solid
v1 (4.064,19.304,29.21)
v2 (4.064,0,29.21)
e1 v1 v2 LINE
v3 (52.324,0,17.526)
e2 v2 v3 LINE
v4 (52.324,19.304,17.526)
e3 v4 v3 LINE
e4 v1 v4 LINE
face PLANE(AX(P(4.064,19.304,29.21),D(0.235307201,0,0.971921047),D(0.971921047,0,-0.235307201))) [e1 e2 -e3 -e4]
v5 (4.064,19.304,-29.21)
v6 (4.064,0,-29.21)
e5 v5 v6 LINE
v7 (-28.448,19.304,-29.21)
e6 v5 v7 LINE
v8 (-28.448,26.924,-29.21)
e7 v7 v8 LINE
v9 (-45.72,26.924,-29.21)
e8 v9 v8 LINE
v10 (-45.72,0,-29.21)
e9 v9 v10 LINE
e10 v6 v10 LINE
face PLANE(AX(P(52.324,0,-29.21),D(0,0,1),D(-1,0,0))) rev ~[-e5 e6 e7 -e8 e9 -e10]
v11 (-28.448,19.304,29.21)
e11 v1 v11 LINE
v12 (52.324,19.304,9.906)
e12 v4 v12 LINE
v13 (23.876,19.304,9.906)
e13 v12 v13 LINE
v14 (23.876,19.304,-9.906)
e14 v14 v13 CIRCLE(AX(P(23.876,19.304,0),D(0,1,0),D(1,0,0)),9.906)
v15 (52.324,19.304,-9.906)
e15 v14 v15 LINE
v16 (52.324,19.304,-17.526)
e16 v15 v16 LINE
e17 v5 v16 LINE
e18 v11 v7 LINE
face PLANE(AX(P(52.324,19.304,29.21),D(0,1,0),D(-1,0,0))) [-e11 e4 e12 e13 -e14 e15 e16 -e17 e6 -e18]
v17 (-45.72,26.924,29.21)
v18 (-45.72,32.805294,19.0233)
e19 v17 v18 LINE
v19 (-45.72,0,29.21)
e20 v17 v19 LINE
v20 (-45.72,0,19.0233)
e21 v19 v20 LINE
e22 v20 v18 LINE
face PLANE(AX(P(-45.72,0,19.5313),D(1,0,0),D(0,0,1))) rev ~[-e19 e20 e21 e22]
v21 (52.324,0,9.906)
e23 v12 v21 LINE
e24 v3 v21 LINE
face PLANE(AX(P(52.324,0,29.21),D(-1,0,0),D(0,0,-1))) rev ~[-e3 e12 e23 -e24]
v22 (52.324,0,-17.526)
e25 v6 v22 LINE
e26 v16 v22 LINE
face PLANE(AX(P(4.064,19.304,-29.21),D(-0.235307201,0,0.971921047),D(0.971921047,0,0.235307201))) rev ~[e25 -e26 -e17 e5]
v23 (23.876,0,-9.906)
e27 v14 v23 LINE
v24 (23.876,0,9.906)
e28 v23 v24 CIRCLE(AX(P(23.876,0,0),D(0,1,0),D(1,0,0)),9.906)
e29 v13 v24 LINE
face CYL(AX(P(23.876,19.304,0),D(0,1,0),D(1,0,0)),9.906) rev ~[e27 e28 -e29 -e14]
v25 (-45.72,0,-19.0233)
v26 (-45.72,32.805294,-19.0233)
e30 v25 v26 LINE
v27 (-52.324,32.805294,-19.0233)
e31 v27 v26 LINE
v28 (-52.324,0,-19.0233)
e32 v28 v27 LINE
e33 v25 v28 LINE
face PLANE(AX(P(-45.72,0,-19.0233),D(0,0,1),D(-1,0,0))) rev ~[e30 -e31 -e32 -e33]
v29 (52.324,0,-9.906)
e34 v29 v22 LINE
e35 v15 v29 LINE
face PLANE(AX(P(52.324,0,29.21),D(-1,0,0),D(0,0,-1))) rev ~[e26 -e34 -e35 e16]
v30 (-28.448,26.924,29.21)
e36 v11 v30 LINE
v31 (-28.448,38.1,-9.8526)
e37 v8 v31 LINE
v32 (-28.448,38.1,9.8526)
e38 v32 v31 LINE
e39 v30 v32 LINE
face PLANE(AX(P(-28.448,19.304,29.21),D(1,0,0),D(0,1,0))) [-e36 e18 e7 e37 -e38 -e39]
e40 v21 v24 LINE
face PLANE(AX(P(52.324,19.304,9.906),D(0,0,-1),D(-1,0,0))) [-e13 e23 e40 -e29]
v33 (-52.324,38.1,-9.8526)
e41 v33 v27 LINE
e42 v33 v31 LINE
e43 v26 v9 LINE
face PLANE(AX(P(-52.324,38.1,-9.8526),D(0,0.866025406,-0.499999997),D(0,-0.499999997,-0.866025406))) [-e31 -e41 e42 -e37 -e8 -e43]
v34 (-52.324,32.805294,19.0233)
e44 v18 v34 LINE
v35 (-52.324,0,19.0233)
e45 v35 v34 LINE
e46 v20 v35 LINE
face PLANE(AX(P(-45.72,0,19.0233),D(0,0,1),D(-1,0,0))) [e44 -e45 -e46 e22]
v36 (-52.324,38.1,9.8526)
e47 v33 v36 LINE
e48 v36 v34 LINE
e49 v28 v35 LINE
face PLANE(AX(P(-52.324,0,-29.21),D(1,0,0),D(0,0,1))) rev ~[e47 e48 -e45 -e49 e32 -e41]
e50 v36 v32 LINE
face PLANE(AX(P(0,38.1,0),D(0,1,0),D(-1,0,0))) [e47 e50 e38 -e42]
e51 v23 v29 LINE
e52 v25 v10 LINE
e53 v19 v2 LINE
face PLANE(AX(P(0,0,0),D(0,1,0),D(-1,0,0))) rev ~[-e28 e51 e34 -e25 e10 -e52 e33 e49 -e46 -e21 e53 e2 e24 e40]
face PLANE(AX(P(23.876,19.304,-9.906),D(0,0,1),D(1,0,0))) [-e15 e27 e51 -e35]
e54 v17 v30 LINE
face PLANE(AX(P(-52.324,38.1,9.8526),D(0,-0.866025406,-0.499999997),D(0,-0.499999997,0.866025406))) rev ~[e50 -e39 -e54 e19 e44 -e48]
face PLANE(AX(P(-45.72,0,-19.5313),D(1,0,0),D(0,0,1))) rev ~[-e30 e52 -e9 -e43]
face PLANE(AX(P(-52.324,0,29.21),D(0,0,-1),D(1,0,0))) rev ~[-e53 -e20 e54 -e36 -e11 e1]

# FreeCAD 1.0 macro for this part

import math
import FreeCAD as App
import Part
import Sketcher
from FreeCAD import Vector
Q = App.Units.Quantity

doc = App.newDocument("Part")
body = doc.addObject("PartDesign::Body", "Body")

sketch1 = doc.addObject("Sketcher::SketchObject", "Sketch")
body.addObject(sketch1)
sketch1.AttachmentSupport = (doc.XZ_Plane, [""])
sketch1.MapMode = "FlatFace"
sketch1.addGeometry([
    Part.LineSegment(Vector(52, 29, 0), Vector(52, -29, 0)),
    Part.LineSegment(Vector(52, -29, 0), Vector(-52, -29, 0)),
    Part.LineSegment(Vector(-52, -29, 0), Vector(-52, 29, 0)),
    Part.LineSegment(Vector(-52, 29, 0), Vector(52, 29, 0)),
], False)
sketch1.addConstraint([
    Sketcher.Constraint("Coincident", 0, 2, 1, 1),
    Sketcher.Constraint("Coincident", 1, 2, 2, 1),
    Sketcher.Constraint("Coincident", 2, 2, 3, 1),
    Sketcher.Constraint("Coincident", 3, 2, 0, 1),
    Sketcher.Constraint("Vertical", 0),
    Sketcher.Constraint("Horizontal", 1),
    Sketcher.Constraint("Vertical", 2),
    Sketcher.Constraint("Horizontal", 3),
    Sketcher.Constraint("Symmetric", 0, 2, 2, 2, -1, 1),
    Sketcher.Constraint("DistanceY", 0, 2, 0, 1, Q("2.3 in")),
    Sketcher.Constraint("DistanceX", 1, 2, 1, 1, Q("4.12 in")),
])
pad1 = doc.addObject("PartDesign::Pad", "Pad")
body.addObject(pad1)
pad1.Profile = sketch1
pad1.Length = Q("1.5 in")
pad1.Reversed = True

sketch2 = doc.addObject("Sketcher::SketchObject", "Sketch001")
body.addObject(sketch2)
sketch2.AttachmentSupport = (doc.XY_Plane, [""])
sketch2.MapMode = "FlatFace"
sketch2.AttachmentOffset = App.Placement(Vector(0, 0, 1.15 * 25.4), App.Rotation())
sketch2.addGeometry([
    Part.LineSegment(Vector(52, 38, 0), Vector(-28, 38, 0)),
    Part.LineSegment(Vector(-28, 38, 0), Vector(-28, 19, 0)),
    Part.LineSegment(Vector(-28, 19, 0), Vector(52, 19, 0)),
    Part.LineSegment(Vector(52, 19, 0), Vector(52, 38, 0)),
], False)
sketch2.addConstraint([
    Sketcher.Constraint("Coincident", 0, 2, 1, 1),
    Sketcher.Constraint("Coincident", 1, 2, 2, 1),
    Sketcher.Constraint("Coincident", 2, 2, 3, 1),
    Sketcher.Constraint("Coincident", 3, 2, 0, 1),
    Sketcher.Constraint("Horizontal", 0),
    Sketcher.Constraint("Vertical", 1),
    Sketcher.Constraint("Horizontal", 2),
    Sketcher.Constraint("Vertical", 3),
    Sketcher.Constraint("DistanceY", -1, 1, 1, 2, Q("0.76 in")),
    Sketcher.Constraint("DistanceX", 0, 2, 0, 1, Q("3.18 in")),
    Sketcher.Constraint("DistanceY", 1, 2, 1, 1, Q("0.74 in")),
    Sketcher.Constraint("DistanceX", 0, 2, -1, 1, Q("1.12 in")),
])
pocket1 = doc.addObject("PartDesign::Pocket", "Pocket")
body.addObject(pocket1)
pocket1.Profile = sketch2
pocket1.Type = "ThroughAll"

sketch3 = doc.addObject("Sketcher::SketchObject", "Sketch002")
body.addObject(sketch3)
sketch3.AttachmentSupport = (doc.YZ_Plane, [""])
sketch3.MapMode = "FlatFace"
sketch3.AttachmentOffset = App.Placement(Vector(0, 0, -2.06 * 25.4), App.Rotation())
sketch3.addGeometry([
    Part.LineSegment(Vector(38, 29, 0), Vector(38, 10, 0)),
    Part.LineSegment(Vector(38, 10, 0), Vector(27, 29, 0)),
    Part.LineSegment(Vector(27, 29, 0), Vector(38, 29, 0)),
], False)
sketch3.addConstraint([
    Sketcher.Constraint("Coincident", 0, 2, 1, 1),
    Sketcher.Constraint("Coincident", 1, 2, 2, 1),
    Sketcher.Constraint("Coincident", 2, 2, 0, 1),
    Sketcher.Constraint("Vertical", 0),
    Sketcher.Constraint("Horizontal", 2),
    Sketcher.Constraint("DistanceX", 2, 1, 2, 2, Q("0.44 in")),
    Sketcher.Constraint("Angle", 1, Q("120 deg")),
    Sketcher.Constraint("DistanceX", -1, 1, 0, 2, Q("1.5 in")),
    Sketcher.Constraint("DistanceY", -1, 1, 1, 2, Q("1.15 in")),
])
pocket2 = doc.addObject("PartDesign::Pocket", "Pocket001")
body.addObject(pocket2)
pocket2.Profile = sketch3
pocket2.Type = "ThroughAll"
pocket2.Reversed = True

sketch4 = doc.addObject("Sketcher::SketchObject", "Sketch003")
body.addObject(sketch4)
sketch4.AttachmentSupport = (doc.YZ_Plane, [""])
sketch4.MapMode = "FlatFace"
sketch4.AttachmentOffset = App.Placement(Vector(0, 0, -2.06 * 25.4), App.Rotation())
sketch4.addGeometry([
    Part.LineSegment(Vector(38, -10, 0), Vector(38, -29, 0)),
    Part.LineSegment(Vector(38, -29, 0), Vector(27, -29, 0)),
    Part.LineSegment(Vector(27, -29, 0), Vector(38, -10, 0)),
], False)
sketch4.addConstraint([
    Sketcher.Constraint("Coincident", 0, 2, 1, 1),
    Sketcher.Constraint("Coincident", 1, 2, 2, 1),
    Sketcher.Constraint("Coincident", 2, 2, 0, 1),
    Sketcher.Constraint("Vertical", 0),
    Sketcher.Constraint("Horizontal", 1),
    Sketcher.Constraint("DistanceX", 1, 2, 1, 1, Q("0.44 in")),
    Sketcher.Constraint("Angle", 2, Q("60 deg")),
    Sketcher.Constraint("DistanceX", -1, 1, 0, 2, Q("1.5 in")),
    Sketcher.Constraint("DistanceY", 0, 2, -1, 1, Q("1.15 in")),
])
pocket3 = doc.addObject("PartDesign::Pocket", "Pocket002")
body.addObject(pocket3)
pocket3.Profile = sketch4
pocket3.Type = "ThroughAll"
pocket3.Reversed = True

sketch5 = doc.addObject("Sketcher::SketchObject", "Sketch004")
body.addObject(sketch5)
sketch5.AttachmentSupport = (doc.XZ_Plane, [""])
sketch5.MapMode = "FlatFace"
sketch5.AttachmentOffset = App.Placement(Vector(0, 0, -0.76 * 25.4), App.Rotation())
sketch5.addGeometry([
    Part.LineSegment(Vector(4, 29, 0), Vector(52, 29, 0)),
    Part.LineSegment(Vector(52, 29, 0), Vector(52, 18, 0)),
    Part.LineSegment(Vector(52, 18, 0), Vector(4, 29, 0)),
], False)
sketch5.addConstraint([
    Sketcher.Constraint("Coincident", 0, 2, 1, 1),
    Sketcher.Constraint("Coincident", 1, 2, 2, 1),
    Sketcher.Constraint("Coincident", 2, 2, 0, 1),
    Sketcher.Constraint("Horizontal", 0),
    Sketcher.Constraint("Vertical", 1),
    Sketcher.Constraint("DistanceX", 0, 1, 0, 2, Q("1.9 in")),
    Sketcher.Constraint("DistanceY", 1, 2, 1, 1, Q("0.46 in")),
    Sketcher.Constraint("DistanceX", -1, 1, 0, 2, Q("2.06 in")),
    Sketcher.Constraint("DistanceY", -1, 1, 0, 2, Q("1.15 in")),
])
pocket4 = doc.addObject("PartDesign::Pocket", "Pocket003")
body.addObject(pocket4)
pocket4.Profile = sketch5
pocket4.Type = "ThroughAll"
pocket4.Reversed = True

sketch6 = doc.addObject("Sketcher::SketchObject", "Sketch005")
body.addObject(sketch6)
sketch6.AttachmentSupport = (doc.XZ_Plane, [""])
sketch6.MapMode = "FlatFace"
sketch6.AttachmentOffset = App.Placement(Vector(0, 0, -0.76 * 25.4), App.Rotation())
sketch6.addGeometry([
    Part.LineSegment(Vector(52, -18, 0), Vector(52, -29, 0)),
    Part.LineSegment(Vector(52, -29, 0), Vector(4, -29, 0)),
    Part.LineSegment(Vector(4, -29, 0), Vector(52, -18, 0)),
], False)
sketch6.addConstraint([
    Sketcher.Constraint("Coincident", 0, 2, 1, 1),
    Sketcher.Constraint("Coincident", 1, 2, 2, 1),
    Sketcher.Constraint("Coincident", 2, 2, 0, 1),
    Sketcher.Constraint("Vertical", 0),
    Sketcher.Constraint("Horizontal", 1),
    Sketcher.Constraint("DistanceX", 1, 2, 1, 1, Q("1.9 in")),
    Sketcher.Constraint("DistanceY", 0, 2, 0, 1, Q("0.46 in")),
    Sketcher.Constraint("DistanceX", -1, 1, 0, 2, Q("2.06 in")),
    Sketcher.Constraint("DistanceY", 0, 2, -1, 1, Q("1.15 in")),
])
pocket5 = doc.addObject("PartDesign::Pocket", "Pocket004")
body.addObject(pocket5)
pocket5.Profile = sketch6
pocket5.Type = "ThroughAll"
pocket5.Reversed = True

sketch7 = doc.addObject("Sketcher::SketchObject", "Sketch006")
body.addObject(sketch7)
sketch7.AttachmentSupport = (doc.XZ_Plane, [""])
sketch7.MapMode = "FlatFace"
sketch7.addGeometry([
    Part.LineSegment(Vector(-52, 30, 0), Vector(-52, 20, 0)),
    Part.LineSegment(Vector(-52, 20, 0), Vector(-46, 20, 0)),
    Part.LineSegment(Vector(-46, 20, 0), Vector(-46, 30, 0)),
    Part.LineSegment(Vector(-46, 30, 0), Vector(-52, 30, 0)),
], False)
sketch7.addConstraint([
    Sketcher.Constraint("Coincident", 0, 2, 1, 1),
    Sketcher.Constraint("Coincident", 1, 2, 2, 1),
    Sketcher.Constraint("Coincident", 2, 2, 3, 1),
    Sketcher.Constraint("Coincident", 3, 2, 0, 1),
    Sketcher.Constraint("Vertical", 0),
    Sketcher.Constraint("Horizontal", 1),
    Sketcher.Constraint("Vertical", 2),
    Sketcher.Constraint("Horizontal", 3),
    Sketcher.Constraint("DistanceY", 0, 2, 0, 1, Q("0.4 in")),
    Sketcher.Constraint("DistanceX", 1, 1, 1, 2, Q("0.26 in")),
    Sketcher.Constraint("DistanceX", 1, 2, -1, 1, Q("1.8 in")),
    Sketcher.Constraint("DistanceY", -1, 1, 0, 2, 19.5313),
])
pocket6 = doc.addObject("PartDesign::Pocket", "Pocket005")
body.addObject(pocket6)
pocket6.Profile = sketch7
pocket6.Type = "ThroughAll"

sketch8 = doc.addObject("Sketcher::SketchObject", "Sketch007")
body.addObject(sketch8)
sketch8.AttachmentSupport = (doc.XZ_Plane, [""])
sketch8.MapMode = "FlatFace"
sketch8.addGeometry([
    Part.LineSegment(Vector(-46, -20, 0), Vector(-52, -20, 0)),
    Part.LineSegment(Vector(-52, -20, 0), Vector(-52, -30, 0)),
    Part.LineSegment(Vector(-52, -30, 0), Vector(-46, -30, 0)),
    Part.LineSegment(Vector(-46, -30, 0), Vector(-46, -20, 0)),
], False)
sketch8.addConstraint([
    Sketcher.Constraint("Coincident", 0, 2, 1, 1),
    Sketcher.Constraint("Coincident", 1, 2, 2, 1),
    Sketcher.Constraint("Coincident", 2, 2, 3, 1),
    Sketcher.Constraint("Coincident", 3, 2, 0, 1),
    Sketcher.Constraint("Horizontal", 0),
    Sketcher.Constraint("Vertical", 1),
    Sketcher.Constraint("Horizontal", 2),
    Sketcher.Constraint("Vertical", 3),
    Sketcher.Constraint("DistanceY", 1, 2, 1, 1, Q("0.4 in")),
    Sketcher.Constraint("DistanceX", 0, 2, 0, 1, Q("0.26 in")),
    Sketcher.Constraint("DistanceX", 2, 2, -1, 1, Q("1.8 in")),
    Sketcher.Constraint("DistanceY", 0, 2, -1, 1, 19.5313),
])
pocket7 = doc.addObject("PartDesign::Pocket", "Pocket006")
body.addObject(pocket7)
pocket7.Profile = sketch8
pocket7.Type = "ThroughAll"

sketch9 = doc.addObject("Sketcher::SketchObject", "Sketch008")
body.addObject(sketch9)
sketch9.AttachmentSupport = (doc.XZ_Plane, [""])
sketch9.MapMode = "FlatFace"
sketch9.AttachmentOffset = App.Placement(Vector(0, 0, -0.76 * 25.4), App.Rotation())
sketch9.addGeometry(Part.Circle(Vector(24, 0, 0), Vector(0, 0, 1), 10), False)
sketch9.addConstraint([
    Sketcher.Constraint("PointOnObject", 0, 3, -1),
    Sketcher.Constraint("Diameter", 0, Q("0.78 in")),
    Sketcher.Constraint("DistanceX", -1, 1, 0, 3, Q("0.94 in")),
])
pocket8 = doc.addObject("PartDesign::Pocket", "Pocket007")
body.addObject(pocket8)
pocket8.Profile = sketch9
pocket8.Type = "ThroughAll"
pocket8.Reversed = True

sketch10 = doc.addObject("Sketcher::SketchObject", "Sketch009")
body.addObject(sketch10)
sketch10.AttachmentSupport = (doc.XZ_Plane, [""])
sketch10.MapMode = "FlatFace"
sketch10.AttachmentOffset = App.Placement(Vector(0, 0, -0.76 * 25.4), App.Rotation())
sketch10.addGeometry([
    Part.ArcOfCircle(Part.Circle(Vector(24, 0, 0), Vector(0, 0, 1), 10), math.radians(-90), math.radians(90)),
    Part.LineSegment(Vector(24, 10, 0), Vector(52, 10, 0)),
    Part.LineSegment(Vector(52, 10, 0), Vector(52, -10, 0)),
    Part.LineSegment(Vector(52, -10, 0), Vector(24, -10, 0)),
], False)
sketch10.addConstraint([
    Sketcher.Constraint("Tangent", 0, 2, 1, 1),
    Sketcher.Constraint("Coincident", 1, 2, 2, 1),
    Sketcher.Constraint("Coincident", 2, 2, 3, 1),
    Sketcher.Constraint("Tangent", 3, 2, 0, 1),
    Sketcher.Constraint("Horizontal", 1),
    Sketcher.Constraint("Vertical", 2),
    Sketcher.Constraint("Horizontal", 3),
    Sketcher.Constraint("PointOnObject", 0, 3, -1),
    Sketcher.Constraint("Radius", 0, Q("0.39 in")),
    Sketcher.Constraint("DistanceX", 1, 1, 1, 2, Q("1.12 in")),
    Sketcher.Constraint("DistanceX", -1, 1, 0, 3, Q("0.94 in")),
])
pocket9 = doc.addObject("PartDesign::Pocket", "Pocket008")
body.addObject(pocket9)
pocket9.Profile = sketch10
pocket9.Type = "ThroughAll"
pocket9.Reversed = True

sketch11 = doc.addObject("Sketcher::SketchObject", "Sketch010")
body.addObject(sketch11)
sketch11.AttachmentSupport = (doc.XZ_Plane, [""])
sketch11.MapMode = "FlatFace"
sketch11.addGeometry([
    Part.LineSegment(Vector(-52.3, -19, 0), Vector(-52.3, -19.5, 0)),
    Part.LineSegment(Vector(-52.3, -19.5, 0), Vector(-45.7, -19.5, 0)),
    Part.LineSegment(Vector(-45.7, -19.5, 0), Vector(-45.7, -19, 0)),
    Part.LineSegment(Vector(-45.7, -19, 0), Vector(-52.3, -19, 0)),
], False)
sketch11.addConstraint([
    Sketcher.Constraint("Coincident", 0, 2, 1, 1),
    Sketcher.Constraint("Coincident", 1, 2, 2, 1),
    Sketcher.Constraint("Coincident", 2, 2, 3, 1),
    Sketcher.Constraint("Coincident", 3, 2, 0, 1),
    Sketcher.Constraint("Vertical", 0),
    Sketcher.Constraint("Horizontal", 1),
    Sketcher.Constraint("Vertical", 2),
    Sketcher.Constraint("Horizontal", 3),
    Sketcher.Constraint("DistanceY", 0, 2, 0, 1, Q("0.02 in")),
    Sketcher.Constraint("DistanceX", 1, 1, 1, 2, Q("0.26 in")),
    Sketcher.Constraint("DistanceX", 1, 2, -1, 1, Q("1.8 in")),
    Sketcher.Constraint("DistanceY", 0, 2, -1, 1, 19.5313),
])
pocket10 = doc.addObject("PartDesign::Pocket", "Pocket009")
body.addObject(pocket10)
pocket10.Profile = sketch11
pocket10.Type = "ThroughAll"

sketch12 = doc.addObject("Sketcher::SketchObject", "Sketch011")
body.addObject(sketch12)
sketch12.AttachmentSupport = (doc.XZ_Plane, [""])
sketch12.MapMode = "FlatFace"
sketch12.addGeometry([
    Part.LineSegment(Vector(-52.3, 19.5, 0), Vector(-52.3, 19, 0)),
    Part.LineSegment(Vector(-52.3, 19, 0), Vector(-45.7, 19, 0)),
    Part.LineSegment(Vector(-45.7, 19, 0), Vector(-45.7, 19.5, 0)),
    Part.LineSegment(Vector(-45.7, 19.5, 0), Vector(-52.3, 19.5, 0)),
], False)
sketch12.addConstraint([
    Sketcher.Constraint("Coincident", 0, 2, 1, 1),
    Sketcher.Constraint("Coincident", 1, 2, 2, 1),
    Sketcher.Constraint("Coincident", 2, 2, 3, 1),
    Sketcher.Constraint("Coincident", 3, 2, 0, 1),
    Sketcher.Constraint("Vertical", 0),
    Sketcher.Constraint("Horizontal", 1),
    Sketcher.Constraint("Vertical", 2),
    Sketcher.Constraint("Horizontal", 3),
    Sketcher.Constraint("DistanceY", 0, 2, 0, 1, Q("0.02 in")),
    Sketcher.Constraint("DistanceX", 1, 1, 1, 2, Q("0.26 in")),
    Sketcher.Constraint("DistanceX", 1, 2, -1, 1, Q("1.8 in")),
    Sketcher.Constraint("DistanceY", -1, 1, 0, 2, 19.0233),
])
pocket11 = doc.addObject("PartDesign::Pocket", "Pocket010")
body.addObject(pocket11)
pocket11.Profile = sketch12
pocket11.Type = "ThroughAll"

doc.recompute()
